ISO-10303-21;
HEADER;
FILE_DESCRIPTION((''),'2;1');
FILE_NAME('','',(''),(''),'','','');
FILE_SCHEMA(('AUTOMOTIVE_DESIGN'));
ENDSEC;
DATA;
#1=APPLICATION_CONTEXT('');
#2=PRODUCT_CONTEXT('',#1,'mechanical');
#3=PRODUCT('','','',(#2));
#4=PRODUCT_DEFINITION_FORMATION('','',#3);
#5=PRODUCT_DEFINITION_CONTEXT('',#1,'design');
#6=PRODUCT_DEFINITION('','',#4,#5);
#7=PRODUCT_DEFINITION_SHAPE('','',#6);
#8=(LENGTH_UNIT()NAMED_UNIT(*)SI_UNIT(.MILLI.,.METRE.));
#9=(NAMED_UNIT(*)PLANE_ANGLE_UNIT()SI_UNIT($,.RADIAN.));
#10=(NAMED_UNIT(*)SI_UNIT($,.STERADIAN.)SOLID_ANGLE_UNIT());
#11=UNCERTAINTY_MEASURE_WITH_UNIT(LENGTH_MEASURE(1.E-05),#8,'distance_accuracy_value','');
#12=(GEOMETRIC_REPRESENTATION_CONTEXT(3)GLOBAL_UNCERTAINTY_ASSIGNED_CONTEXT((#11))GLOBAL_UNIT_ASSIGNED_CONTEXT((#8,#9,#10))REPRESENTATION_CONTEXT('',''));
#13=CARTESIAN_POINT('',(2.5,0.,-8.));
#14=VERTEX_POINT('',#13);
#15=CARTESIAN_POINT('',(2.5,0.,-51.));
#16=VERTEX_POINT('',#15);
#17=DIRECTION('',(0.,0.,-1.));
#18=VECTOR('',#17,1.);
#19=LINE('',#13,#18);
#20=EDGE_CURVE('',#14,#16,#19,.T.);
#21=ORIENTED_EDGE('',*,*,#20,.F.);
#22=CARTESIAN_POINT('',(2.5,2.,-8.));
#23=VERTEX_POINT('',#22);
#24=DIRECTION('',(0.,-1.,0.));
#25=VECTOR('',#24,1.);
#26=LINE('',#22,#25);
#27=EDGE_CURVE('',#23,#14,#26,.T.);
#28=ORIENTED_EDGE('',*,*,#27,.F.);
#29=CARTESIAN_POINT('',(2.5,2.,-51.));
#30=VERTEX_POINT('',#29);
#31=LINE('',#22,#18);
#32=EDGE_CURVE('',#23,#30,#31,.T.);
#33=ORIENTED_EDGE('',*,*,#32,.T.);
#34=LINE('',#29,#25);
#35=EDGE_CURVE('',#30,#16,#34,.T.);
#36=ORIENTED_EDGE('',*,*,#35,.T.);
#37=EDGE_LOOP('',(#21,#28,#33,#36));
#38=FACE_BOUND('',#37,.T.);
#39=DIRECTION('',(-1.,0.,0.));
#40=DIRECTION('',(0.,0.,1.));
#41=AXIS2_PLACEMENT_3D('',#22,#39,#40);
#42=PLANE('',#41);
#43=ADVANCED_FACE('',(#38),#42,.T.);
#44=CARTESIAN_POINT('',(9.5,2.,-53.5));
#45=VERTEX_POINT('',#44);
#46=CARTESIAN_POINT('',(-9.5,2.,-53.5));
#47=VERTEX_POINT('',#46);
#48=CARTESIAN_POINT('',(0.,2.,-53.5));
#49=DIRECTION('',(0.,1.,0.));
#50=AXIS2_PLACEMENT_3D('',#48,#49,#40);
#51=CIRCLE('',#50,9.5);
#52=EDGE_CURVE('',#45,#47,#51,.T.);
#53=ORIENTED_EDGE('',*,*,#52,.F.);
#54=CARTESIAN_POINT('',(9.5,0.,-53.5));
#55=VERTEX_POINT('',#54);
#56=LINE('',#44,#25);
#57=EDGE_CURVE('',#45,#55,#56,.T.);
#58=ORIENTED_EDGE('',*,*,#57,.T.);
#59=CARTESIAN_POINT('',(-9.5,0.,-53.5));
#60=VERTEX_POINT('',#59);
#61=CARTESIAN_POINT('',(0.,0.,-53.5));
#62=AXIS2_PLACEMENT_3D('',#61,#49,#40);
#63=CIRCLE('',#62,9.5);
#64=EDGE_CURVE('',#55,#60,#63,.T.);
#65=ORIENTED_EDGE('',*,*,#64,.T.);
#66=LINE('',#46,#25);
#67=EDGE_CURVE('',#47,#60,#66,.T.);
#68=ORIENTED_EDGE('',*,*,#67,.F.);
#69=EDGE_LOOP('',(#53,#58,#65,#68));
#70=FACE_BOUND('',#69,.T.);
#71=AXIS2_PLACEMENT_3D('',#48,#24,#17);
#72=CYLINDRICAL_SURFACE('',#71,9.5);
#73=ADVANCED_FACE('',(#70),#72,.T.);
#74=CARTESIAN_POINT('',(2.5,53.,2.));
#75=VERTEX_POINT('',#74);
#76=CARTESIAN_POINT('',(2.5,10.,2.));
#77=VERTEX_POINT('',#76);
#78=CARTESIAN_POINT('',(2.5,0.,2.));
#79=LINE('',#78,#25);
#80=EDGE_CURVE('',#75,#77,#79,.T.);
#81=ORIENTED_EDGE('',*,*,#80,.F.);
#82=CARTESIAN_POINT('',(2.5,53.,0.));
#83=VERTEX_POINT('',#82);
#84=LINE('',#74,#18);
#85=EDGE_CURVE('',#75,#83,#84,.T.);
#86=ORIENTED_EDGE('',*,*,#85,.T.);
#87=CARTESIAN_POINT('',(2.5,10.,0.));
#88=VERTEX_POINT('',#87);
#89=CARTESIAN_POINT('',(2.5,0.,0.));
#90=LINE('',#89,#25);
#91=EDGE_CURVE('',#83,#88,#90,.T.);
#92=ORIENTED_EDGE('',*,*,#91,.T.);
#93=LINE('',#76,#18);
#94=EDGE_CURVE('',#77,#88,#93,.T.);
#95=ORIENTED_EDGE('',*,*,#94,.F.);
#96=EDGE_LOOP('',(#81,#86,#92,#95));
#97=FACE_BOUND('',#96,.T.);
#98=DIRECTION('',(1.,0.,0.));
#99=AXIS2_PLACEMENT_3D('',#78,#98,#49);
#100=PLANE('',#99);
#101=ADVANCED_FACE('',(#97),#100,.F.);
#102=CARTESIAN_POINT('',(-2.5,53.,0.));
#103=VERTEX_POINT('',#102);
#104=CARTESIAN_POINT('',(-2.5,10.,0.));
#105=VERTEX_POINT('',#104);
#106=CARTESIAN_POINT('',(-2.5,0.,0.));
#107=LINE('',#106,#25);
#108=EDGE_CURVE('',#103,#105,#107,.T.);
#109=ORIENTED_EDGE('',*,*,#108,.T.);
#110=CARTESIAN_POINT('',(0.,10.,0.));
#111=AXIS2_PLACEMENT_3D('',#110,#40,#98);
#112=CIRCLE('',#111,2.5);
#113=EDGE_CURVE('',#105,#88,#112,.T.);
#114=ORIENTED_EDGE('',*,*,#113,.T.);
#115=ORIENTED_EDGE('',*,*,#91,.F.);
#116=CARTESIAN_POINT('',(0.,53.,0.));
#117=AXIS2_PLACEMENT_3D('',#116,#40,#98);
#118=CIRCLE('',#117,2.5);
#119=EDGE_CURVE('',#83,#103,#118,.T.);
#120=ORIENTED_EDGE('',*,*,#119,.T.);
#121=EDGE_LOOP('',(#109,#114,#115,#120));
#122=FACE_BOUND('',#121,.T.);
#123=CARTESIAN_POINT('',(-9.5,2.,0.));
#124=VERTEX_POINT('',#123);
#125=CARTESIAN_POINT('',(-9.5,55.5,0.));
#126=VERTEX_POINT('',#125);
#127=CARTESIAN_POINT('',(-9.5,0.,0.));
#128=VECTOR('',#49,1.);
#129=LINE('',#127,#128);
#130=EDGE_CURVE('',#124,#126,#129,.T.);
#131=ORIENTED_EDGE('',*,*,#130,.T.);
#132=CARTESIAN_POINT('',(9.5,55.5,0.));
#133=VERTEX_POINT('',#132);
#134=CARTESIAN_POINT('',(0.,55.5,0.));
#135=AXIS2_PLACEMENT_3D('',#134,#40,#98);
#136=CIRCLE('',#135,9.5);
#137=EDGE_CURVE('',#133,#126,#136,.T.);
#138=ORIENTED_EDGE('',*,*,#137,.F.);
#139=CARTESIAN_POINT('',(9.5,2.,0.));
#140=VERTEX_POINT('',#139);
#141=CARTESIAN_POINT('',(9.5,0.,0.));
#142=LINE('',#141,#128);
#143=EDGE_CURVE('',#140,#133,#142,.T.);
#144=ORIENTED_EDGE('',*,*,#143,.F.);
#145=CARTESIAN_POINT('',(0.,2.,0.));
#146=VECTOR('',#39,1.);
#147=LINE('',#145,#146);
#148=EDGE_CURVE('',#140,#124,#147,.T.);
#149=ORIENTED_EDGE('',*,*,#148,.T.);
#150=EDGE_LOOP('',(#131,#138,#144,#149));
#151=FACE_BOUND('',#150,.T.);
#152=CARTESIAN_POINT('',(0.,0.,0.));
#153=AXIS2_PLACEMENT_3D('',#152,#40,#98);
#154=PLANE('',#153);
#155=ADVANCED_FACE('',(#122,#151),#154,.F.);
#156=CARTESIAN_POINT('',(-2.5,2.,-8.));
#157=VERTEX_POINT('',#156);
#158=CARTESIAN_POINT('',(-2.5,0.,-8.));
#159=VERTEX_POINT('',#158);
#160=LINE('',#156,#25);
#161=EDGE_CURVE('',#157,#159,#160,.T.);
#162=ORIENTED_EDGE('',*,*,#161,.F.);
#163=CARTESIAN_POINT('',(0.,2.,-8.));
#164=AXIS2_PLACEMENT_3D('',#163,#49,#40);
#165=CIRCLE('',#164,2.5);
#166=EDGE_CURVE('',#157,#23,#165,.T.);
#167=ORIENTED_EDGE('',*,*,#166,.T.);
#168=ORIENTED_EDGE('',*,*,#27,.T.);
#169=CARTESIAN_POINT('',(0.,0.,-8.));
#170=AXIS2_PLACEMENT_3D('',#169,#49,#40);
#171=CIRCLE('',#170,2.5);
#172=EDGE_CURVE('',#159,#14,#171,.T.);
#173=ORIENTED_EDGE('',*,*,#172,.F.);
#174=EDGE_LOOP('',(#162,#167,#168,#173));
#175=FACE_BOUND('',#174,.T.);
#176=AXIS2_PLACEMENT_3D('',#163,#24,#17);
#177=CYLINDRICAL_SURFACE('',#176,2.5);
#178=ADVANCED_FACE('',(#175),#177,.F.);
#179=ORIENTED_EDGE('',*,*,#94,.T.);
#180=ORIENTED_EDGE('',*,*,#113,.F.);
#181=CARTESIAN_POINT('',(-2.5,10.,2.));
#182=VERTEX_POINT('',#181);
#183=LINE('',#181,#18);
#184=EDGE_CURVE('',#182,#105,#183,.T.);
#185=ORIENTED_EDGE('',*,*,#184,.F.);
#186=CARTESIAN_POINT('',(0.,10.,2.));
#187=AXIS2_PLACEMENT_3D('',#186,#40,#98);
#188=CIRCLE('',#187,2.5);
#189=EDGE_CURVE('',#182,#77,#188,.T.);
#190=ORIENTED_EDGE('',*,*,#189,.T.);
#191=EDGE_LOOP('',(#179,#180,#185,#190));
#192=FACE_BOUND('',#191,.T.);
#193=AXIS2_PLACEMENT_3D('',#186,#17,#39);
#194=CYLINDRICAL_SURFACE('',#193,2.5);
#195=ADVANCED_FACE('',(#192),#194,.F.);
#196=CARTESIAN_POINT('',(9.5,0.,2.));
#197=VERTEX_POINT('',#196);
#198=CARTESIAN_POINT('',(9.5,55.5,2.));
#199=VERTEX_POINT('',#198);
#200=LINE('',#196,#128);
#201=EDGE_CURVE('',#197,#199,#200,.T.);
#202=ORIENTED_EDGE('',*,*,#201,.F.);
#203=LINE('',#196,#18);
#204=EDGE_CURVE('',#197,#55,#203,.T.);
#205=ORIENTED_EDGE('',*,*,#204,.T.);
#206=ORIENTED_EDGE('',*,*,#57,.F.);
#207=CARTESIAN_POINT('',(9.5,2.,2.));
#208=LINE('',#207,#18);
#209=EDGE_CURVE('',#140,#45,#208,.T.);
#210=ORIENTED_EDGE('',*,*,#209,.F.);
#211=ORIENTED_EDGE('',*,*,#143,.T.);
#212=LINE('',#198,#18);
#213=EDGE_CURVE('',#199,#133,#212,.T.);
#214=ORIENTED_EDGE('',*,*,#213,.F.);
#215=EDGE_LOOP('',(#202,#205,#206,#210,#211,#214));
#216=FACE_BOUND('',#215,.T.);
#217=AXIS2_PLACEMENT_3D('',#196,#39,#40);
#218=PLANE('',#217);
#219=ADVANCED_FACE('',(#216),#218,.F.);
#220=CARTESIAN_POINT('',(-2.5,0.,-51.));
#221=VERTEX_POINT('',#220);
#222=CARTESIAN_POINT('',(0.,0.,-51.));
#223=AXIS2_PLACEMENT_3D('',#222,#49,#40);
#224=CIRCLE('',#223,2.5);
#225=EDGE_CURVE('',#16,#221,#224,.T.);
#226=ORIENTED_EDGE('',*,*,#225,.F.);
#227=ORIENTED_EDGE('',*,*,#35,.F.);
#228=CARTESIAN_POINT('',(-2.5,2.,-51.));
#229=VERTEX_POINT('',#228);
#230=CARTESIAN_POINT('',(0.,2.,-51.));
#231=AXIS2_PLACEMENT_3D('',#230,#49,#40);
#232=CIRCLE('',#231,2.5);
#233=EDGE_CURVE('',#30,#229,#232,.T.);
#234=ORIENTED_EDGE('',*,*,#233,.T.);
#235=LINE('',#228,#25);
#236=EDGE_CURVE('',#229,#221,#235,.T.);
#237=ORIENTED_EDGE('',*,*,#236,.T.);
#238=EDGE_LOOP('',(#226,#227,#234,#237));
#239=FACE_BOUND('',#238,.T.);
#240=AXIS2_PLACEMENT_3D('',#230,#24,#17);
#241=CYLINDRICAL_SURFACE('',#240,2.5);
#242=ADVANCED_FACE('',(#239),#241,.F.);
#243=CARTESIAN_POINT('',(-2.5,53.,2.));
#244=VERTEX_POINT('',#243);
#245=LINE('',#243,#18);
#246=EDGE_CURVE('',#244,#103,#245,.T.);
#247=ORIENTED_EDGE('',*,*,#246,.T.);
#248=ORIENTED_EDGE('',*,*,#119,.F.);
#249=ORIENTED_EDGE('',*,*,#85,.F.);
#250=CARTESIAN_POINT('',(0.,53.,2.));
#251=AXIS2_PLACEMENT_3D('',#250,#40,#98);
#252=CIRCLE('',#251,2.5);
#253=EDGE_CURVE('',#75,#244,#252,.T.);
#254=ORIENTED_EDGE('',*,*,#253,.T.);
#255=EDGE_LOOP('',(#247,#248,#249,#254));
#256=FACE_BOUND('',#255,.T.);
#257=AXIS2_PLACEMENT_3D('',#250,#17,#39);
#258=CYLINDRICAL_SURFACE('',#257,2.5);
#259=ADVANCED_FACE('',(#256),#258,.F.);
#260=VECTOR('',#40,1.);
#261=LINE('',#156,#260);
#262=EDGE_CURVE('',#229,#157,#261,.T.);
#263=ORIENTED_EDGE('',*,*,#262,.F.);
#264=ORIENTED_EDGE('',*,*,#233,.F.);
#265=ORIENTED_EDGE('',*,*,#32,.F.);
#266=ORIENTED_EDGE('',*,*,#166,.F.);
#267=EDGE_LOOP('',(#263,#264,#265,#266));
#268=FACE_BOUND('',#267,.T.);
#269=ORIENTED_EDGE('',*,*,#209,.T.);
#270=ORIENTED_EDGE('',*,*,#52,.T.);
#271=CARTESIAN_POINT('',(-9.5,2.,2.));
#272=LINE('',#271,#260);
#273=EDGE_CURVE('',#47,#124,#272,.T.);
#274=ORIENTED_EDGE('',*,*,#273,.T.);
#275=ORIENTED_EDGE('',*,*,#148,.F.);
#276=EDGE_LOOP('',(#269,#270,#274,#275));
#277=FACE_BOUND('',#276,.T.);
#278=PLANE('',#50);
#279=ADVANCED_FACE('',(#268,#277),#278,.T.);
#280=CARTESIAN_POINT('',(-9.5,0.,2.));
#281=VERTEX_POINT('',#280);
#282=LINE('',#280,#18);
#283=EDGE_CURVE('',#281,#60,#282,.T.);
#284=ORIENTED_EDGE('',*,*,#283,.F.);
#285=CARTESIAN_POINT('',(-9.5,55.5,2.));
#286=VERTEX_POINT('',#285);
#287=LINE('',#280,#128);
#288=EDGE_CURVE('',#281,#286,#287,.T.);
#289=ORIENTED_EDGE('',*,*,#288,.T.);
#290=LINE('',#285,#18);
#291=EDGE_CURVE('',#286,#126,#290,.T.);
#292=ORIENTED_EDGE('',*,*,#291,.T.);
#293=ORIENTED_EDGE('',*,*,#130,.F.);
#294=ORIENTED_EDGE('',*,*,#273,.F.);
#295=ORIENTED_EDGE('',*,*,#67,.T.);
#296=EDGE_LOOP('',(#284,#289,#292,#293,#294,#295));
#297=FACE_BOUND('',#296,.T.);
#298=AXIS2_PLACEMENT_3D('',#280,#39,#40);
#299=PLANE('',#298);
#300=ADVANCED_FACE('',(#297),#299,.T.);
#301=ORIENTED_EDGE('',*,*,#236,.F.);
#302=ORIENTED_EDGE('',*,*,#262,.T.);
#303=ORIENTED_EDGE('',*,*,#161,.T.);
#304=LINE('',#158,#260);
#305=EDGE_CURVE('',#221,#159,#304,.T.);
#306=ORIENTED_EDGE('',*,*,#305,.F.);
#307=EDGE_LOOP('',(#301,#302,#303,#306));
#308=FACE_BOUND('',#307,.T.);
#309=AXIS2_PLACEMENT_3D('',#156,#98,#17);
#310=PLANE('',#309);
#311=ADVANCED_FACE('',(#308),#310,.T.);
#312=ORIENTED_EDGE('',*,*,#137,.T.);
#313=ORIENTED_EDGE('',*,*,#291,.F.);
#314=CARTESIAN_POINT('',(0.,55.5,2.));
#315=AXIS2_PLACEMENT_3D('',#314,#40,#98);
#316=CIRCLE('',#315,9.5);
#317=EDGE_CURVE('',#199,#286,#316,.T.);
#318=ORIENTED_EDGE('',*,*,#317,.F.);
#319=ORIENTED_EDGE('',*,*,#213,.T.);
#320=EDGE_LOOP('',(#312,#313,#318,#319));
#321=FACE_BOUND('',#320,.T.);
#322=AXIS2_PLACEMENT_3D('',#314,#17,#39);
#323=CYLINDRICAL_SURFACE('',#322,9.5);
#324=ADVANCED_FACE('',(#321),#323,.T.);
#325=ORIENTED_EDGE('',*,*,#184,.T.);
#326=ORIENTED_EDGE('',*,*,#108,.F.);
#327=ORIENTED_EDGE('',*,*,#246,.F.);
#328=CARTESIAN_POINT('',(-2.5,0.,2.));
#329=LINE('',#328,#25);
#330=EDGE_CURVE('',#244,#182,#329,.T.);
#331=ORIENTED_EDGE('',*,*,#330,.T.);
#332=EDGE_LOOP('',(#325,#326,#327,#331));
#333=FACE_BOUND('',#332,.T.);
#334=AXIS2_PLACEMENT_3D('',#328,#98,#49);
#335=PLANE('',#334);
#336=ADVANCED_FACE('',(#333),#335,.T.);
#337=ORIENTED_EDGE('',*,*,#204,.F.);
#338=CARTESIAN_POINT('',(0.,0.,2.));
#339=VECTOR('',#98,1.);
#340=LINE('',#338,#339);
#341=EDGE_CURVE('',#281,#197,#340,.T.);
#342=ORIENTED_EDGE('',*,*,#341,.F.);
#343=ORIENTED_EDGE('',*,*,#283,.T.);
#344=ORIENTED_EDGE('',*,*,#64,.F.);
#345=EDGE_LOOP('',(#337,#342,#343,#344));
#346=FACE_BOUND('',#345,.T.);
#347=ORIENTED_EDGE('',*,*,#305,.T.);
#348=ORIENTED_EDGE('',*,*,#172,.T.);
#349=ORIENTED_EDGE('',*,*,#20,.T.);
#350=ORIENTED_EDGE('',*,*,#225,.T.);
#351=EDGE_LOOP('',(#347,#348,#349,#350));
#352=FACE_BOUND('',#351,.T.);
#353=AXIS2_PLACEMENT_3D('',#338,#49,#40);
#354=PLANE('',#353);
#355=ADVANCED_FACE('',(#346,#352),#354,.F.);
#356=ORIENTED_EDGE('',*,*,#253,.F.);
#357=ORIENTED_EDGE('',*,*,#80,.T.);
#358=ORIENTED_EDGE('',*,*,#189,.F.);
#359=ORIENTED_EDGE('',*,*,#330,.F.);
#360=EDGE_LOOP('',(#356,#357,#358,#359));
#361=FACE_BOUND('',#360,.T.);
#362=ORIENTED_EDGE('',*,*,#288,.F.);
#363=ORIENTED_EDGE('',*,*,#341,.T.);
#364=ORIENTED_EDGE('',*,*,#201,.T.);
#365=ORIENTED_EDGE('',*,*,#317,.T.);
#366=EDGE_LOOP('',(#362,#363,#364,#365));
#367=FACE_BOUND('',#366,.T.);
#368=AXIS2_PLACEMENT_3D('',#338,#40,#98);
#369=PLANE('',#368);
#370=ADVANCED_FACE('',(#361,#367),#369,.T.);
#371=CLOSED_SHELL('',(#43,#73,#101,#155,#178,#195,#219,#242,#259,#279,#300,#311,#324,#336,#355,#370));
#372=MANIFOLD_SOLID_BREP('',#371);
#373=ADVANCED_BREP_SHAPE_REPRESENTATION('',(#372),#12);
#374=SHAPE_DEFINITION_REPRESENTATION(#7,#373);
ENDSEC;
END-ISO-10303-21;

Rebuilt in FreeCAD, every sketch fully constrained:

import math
import FreeCAD as App
import Part
import Sketcher
from FreeCAD import Vector

doc = App.newDocument("Part")
body = doc.addObject("PartDesign::Body", "Body")

sketch1 = body.newObject("Sketcher::SketchObject", "Sketch")
sketch1.AttachmentSupport = (doc.getObject("XY_Plane"), [""])
sketch1.MapMode = "FlatFace"
sketch1.addGeometry([
    Part.LineSegment(Vector(-9.5, 55.5, 0), Vector(-9.5, 0, 0)),
    Part.LineSegment(Vector(-9.5, 0, 0), Vector(9.5, 0, 0)),
    Part.LineSegment(Vector(9.5, 0, 0), Vector(9.5, 55.5, 0)),
    Part.ArcOfCircle(Part.Circle(Vector(0, 55.5, 0), Vector(0, 0, 1), 9.5), math.radians(0), math.radians(180)),
    Part.LineSegment(Vector(-2.5, 10, 0), Vector(-2.5, 53, 0)),
    Part.ArcOfCircle(Part.Circle(Vector(0, 53, 0), Vector(0, 0, 1), 2.5), math.radians(0), math.radians(180)),
    Part.LineSegment(Vector(2.5, 53, 0), Vector(2.5, 10, 0)),
    Part.ArcOfCircle(Part.Circle(Vector(0, 10, 0), Vector(0, 0, 1), 2.5), math.radians(180), math.radians(360)),
], False)
sketch1.addConstraint([
    Sketcher.Constraint("Coincident", 0, 2, 1, 1),
    Sketcher.Constraint("Coincident", 1, 2, 2, 1),
    Sketcher.Constraint("Tangent", 2, 2, 3, 1),
    Sketcher.Constraint("Tangent", 3, 2, 0, 1),
    Sketcher.Constraint("Tangent", 4, 2, 5, 2),
    Sketcher.Constraint("Tangent", 5, 1, 6, 1),
    Sketcher.Constraint("Tangent", 6, 2, 7, 2),
    Sketcher.Constraint("Tangent", 7, 1, 4, 1),
    Sketcher.Constraint("Vertical", 0),
    Sketcher.Constraint("Horizontal", 1),
    Sketcher.Constraint("Vertical", 2),
    Sketcher.Constraint("Vertical", 4),
    Sketcher.Constraint("Vertical", 6),
    Sketcher.Constraint("Symmetric", 0, 2, 1, 2, -1, 1),
    Sketcher.Constraint("PointOnObject", 5, 3, -2),
    Sketcher.Constraint("Radius", 3, 9.5),
    Sketcher.Constraint("Radius", 5, 2.5),
    Sketcher.Constraint("DistanceY", 4, 1, 4, 2, 43.0),
    Sketcher.Constraint("DistanceY", 0, 2, 0, 1, 55.5),
    Sketcher.Constraint("DistanceY", -1, 1, 5, 3, 53.0),
])
pad1 = body.newObject("PartDesign::Pad", "Pad")
pad1.Profile = sketch1
pad1.Length = 2

sketch2 = body.newObject("Sketcher::SketchObject", "Sketch001")
sketch2.AttachmentSupport = (doc.getObject("XZ_Plane"), [""])
sketch2.MapMode = "FlatFace"
sketch2.addGeometry([
    Part.LineSegment(Vector(-9.5, 2, 0), Vector(9.5, 2, 0)),
    Part.LineSegment(Vector(9.5, 2, 0), Vector(9.5, -53.5, 0)),
    Part.ArcOfCircle(Part.Circle(Vector(0, -53.5, 0), Vector(0, 0, 1), 9.5), math.radians(180), math.radians(360)),
    Part.LineSegment(Vector(-9.5, -53.5, 0), Vector(-9.5, 2, 0)),
    Part.ArcOfCircle(Part.Circle(Vector(0, -8, 0), Vector(0, 0, 1), 2.5), math.radians(0), math.radians(180)),
    Part.LineSegment(Vector(-2.5, -8, 0), Vector(-2.5, -51, 0)),
    Part.ArcOfCircle(Part.Circle(Vector(0, -51, 0), Vector(0, 0, 1), 2.5), math.radians(180), math.radians(360)),
    Part.LineSegment(Vector(2.5, -51, 0), Vector(2.5, -8, 0)),
], False)
sketch2.addConstraint([
    Sketcher.Constraint("Coincident", 0, 2, 1, 1),
    Sketcher.Constraint("Tangent", 1, 2, 2, 2),
    Sketcher.Constraint("Tangent", 2, 1, 3, 1),
    Sketcher.Constraint("Coincident", 3, 2, 0, 1),
    Sketcher.Constraint("Tangent", 4, 2, 5, 1),
    Sketcher.Constraint("Tangent", 5, 2, 6, 1),
    Sketcher.Constraint("Tangent", 6, 2, 7, 1),
    Sketcher.Constraint("Tangent", 7, 2, 4, 1),
    Sketcher.Constraint("Horizontal", 0),
    Sketcher.Constraint("Vertical", 1),
    Sketcher.Constraint("Vertical", 3),
    Sketcher.Constraint("Vertical", 5),
    Sketcher.Constraint("Vertical", 7),
    Sketcher.Constraint("PointOnObject", 2, 3, -2),
    Sketcher.Constraint("PointOnObject", 4, 3, -2),
    Sketcher.Constraint("Radius", 2, 9.5),
    Sketcher.Constraint("Radius", 4, 2.5),
    Sketcher.Constraint("DistanceY", 5, 2, 5, 1, 43.0),
    Sketcher.Constraint("DistanceY", 1, 2, 1, 1, 55.5),
    Sketcher.Constraint("DistanceY", 4, 3, -1, 1, 8.0),
    Sketcher.Constraint("DistanceY", -1, 1, 0, 2, 2.0),
])
pad2 = body.newObject("PartDesign::Pad", "Pad001")
pad2.Profile = sketch2
pad2.Length = 2
pad2.Reversed = True

doc.recompute()
